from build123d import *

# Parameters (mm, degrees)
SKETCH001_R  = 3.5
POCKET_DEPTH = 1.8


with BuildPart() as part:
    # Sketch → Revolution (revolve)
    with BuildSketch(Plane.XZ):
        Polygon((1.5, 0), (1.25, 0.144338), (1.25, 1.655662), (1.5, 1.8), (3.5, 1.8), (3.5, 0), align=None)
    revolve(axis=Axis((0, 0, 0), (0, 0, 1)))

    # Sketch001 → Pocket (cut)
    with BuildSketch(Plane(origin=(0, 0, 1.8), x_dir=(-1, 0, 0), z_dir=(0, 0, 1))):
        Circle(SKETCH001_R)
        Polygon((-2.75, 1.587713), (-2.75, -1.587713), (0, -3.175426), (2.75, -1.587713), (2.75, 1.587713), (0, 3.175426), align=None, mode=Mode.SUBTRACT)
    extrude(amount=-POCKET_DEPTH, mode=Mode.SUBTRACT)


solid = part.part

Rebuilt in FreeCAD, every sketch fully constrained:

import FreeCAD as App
import Part
import Sketcher
Q = App.Units.Quantity

doc = App.newDocument("Part")
body = doc.addObject("PartDesign::Body", "Body")

sketch1 = body.newObject("Sketcher::SketchObject", "Sketch")
sketch1.AttachmentSupport = (doc.getObject("XZ_Plane"), [""])
sketch1.MapMode = "FlatFace"
sketch1.addGeometry([
    Part.LineSegment(App.Vector(1.25, 0.14, 0), App.Vector(1.5, 0, 0)),
    Part.LineSegment(App.Vector(1.5, 0, 0), App.Vector(3.5, 0, 0)),
    Part.LineSegment(App.Vector(3.5, 0, 0), App.Vector(3.5, 1.8, 0)),
    Part.LineSegment(App.Vector(3.5, 1.8, 0), App.Vector(1.5, 1.8, 0)),
    Part.LineSegment(App.Vector(1.5, 1.8, 0), App.Vector(1.25, 1.66, 0)),
    Part.LineSegment(App.Vector(1.25, 1.66, 0), App.Vector(1.25, 0.14, 0)),
], False)
sketch1.addConstraint([
    Sketcher.Constraint("Coincident", 0, 2, 1, 1),
    Sketcher.Constraint("Coincident", 1, 2, 2, 1),
    Sketcher.Constraint("Coincident", 2, 2, 3, 1),
    Sketcher.Constraint("Coincident", 3, 2, 4, 1),
    Sketcher.Constraint("Coincident", 4, 2, 5, 1),
    Sketcher.Constraint("Coincident", 5, 2, 0, 1),
    Sketcher.Constraint("Horizontal", 1),
    Sketcher.Constraint("Vertical", 2),
    Sketcher.Constraint("Horizontal", 3),
    Sketcher.Constraint("Vertical", 5),
    Sketcher.Constraint("PointOnObject", 0, 2, -1),
    Sketcher.Constraint("Vertical", 0, 2, 3, 2),
    Sketcher.Constraint("Equal", 0, 4),
    Sketcher.Constraint("DistanceX", 1, 1, 1, 2, 2.0),
    Sketcher.Constraint("DistanceY", 2, 1, 2, 2, 1.8),
    Sketcher.Constraint("DistanceX", -1, 1, 0, 2, 1.5),
    Sketcher.Constraint("DistanceX", -1, 1, 4, 2, 1.25),
    Sketcher.Constraint("DistanceY", 5, 2, 5, 1, 1.511324),
])
revolution = body.newObject("PartDesign::Revolution", "Revolution")
revolution.Profile = sketch1
revolution.ReferenceAxis = (sketch1, ["V_Axis"])
revolution.Angle = 360

sketch2 = body.newObject("Sketcher::SketchObject", "Sketch001")
sketch2.AttachmentSupport = (doc.getObject("XY_Plane"), [""])
sketch2.MapMode = "FlatFace"
sketch2.AttachmentOffset = App.Placement(App.Vector(0, 0, 1.8), App.Rotation())
sketch2.addGeometry([
    Part.Circle(App.Vector(0, 0, 0), App.Vector(0, 0, 1), 3.5),
    Part.LineSegment(App.Vector(2.8, 1.6, 0), App.Vector(2.8, -1.6, 0)),
    Part.LineSegment(App.Vector(2.8, -1.6, 0), App.Vector(0, -3.2, 0)),
    Part.LineSegment(App.Vector(0, -3.2, 0), App.Vector(-2.8, -1.6, 0)),
    Part.LineSegment(App.Vector(-2.8, -1.6, 0), App.Vector(-2.8, 1.6, 0)),
    Part.LineSegment(App.Vector(-2.8, 1.6, 0), App.Vector(0, 3.2, 0)),
    Part.LineSegment(App.Vector(0, 3.2, 0), App.Vector(2.8, 1.6, 0)),
], False)
sketch2.addConstraint([
    Sketcher.Constraint("Coincident", 1, 2, 2, 1),
    Sketcher.Constraint("Coincident", 2, 2, 3, 1),
    Sketcher.Constraint("Coincident", 3, 2, 4, 1),
    Sketcher.Constraint("Coincident", 4, 2, 5, 1),
    Sketcher.Constraint("Coincident", 5, 2, 6, 1),
    Sketcher.Constraint("Coincident", 6, 2, 1, 1),
    Sketcher.Constraint("Vertical", 1),
    Sketcher.Constraint("Vertical", 4),
    Sketcher.Constraint("Coincident", 0, 3, -1, 1),
    Sketcher.Constraint("Symmetric", 1, 2, 4, 2, -1, 1),
    Sketcher.Constraint("Symmetric", 2, 2, 5, 2, -1, 1),
    Sketcher.Constraint("PointOnObject", 2, 2, -2),
    Sketcher.Constraint("Parallel", 3, 6),
    Sketcher.Constraint("Horizontal", 1, 2, 3, 2),
    Sketcher.Constraint("Diameter", 0, 7.0),
    Sketcher.Constraint("Angle", 2, Q("-150.000004 deg")),
    Sketcher.Constraint("DistanceX", 3, 2, 1, 2, 5.5),
    Sketcher.Constraint("DistanceY", 1, 2, 1, 1, 3.175426),
])
pocket1 = body.newObject("PartDesign::Pocket", "Pocket")
pocket1.Profile = sketch2
pocket1.Length = 1.8

doc.recompute()
